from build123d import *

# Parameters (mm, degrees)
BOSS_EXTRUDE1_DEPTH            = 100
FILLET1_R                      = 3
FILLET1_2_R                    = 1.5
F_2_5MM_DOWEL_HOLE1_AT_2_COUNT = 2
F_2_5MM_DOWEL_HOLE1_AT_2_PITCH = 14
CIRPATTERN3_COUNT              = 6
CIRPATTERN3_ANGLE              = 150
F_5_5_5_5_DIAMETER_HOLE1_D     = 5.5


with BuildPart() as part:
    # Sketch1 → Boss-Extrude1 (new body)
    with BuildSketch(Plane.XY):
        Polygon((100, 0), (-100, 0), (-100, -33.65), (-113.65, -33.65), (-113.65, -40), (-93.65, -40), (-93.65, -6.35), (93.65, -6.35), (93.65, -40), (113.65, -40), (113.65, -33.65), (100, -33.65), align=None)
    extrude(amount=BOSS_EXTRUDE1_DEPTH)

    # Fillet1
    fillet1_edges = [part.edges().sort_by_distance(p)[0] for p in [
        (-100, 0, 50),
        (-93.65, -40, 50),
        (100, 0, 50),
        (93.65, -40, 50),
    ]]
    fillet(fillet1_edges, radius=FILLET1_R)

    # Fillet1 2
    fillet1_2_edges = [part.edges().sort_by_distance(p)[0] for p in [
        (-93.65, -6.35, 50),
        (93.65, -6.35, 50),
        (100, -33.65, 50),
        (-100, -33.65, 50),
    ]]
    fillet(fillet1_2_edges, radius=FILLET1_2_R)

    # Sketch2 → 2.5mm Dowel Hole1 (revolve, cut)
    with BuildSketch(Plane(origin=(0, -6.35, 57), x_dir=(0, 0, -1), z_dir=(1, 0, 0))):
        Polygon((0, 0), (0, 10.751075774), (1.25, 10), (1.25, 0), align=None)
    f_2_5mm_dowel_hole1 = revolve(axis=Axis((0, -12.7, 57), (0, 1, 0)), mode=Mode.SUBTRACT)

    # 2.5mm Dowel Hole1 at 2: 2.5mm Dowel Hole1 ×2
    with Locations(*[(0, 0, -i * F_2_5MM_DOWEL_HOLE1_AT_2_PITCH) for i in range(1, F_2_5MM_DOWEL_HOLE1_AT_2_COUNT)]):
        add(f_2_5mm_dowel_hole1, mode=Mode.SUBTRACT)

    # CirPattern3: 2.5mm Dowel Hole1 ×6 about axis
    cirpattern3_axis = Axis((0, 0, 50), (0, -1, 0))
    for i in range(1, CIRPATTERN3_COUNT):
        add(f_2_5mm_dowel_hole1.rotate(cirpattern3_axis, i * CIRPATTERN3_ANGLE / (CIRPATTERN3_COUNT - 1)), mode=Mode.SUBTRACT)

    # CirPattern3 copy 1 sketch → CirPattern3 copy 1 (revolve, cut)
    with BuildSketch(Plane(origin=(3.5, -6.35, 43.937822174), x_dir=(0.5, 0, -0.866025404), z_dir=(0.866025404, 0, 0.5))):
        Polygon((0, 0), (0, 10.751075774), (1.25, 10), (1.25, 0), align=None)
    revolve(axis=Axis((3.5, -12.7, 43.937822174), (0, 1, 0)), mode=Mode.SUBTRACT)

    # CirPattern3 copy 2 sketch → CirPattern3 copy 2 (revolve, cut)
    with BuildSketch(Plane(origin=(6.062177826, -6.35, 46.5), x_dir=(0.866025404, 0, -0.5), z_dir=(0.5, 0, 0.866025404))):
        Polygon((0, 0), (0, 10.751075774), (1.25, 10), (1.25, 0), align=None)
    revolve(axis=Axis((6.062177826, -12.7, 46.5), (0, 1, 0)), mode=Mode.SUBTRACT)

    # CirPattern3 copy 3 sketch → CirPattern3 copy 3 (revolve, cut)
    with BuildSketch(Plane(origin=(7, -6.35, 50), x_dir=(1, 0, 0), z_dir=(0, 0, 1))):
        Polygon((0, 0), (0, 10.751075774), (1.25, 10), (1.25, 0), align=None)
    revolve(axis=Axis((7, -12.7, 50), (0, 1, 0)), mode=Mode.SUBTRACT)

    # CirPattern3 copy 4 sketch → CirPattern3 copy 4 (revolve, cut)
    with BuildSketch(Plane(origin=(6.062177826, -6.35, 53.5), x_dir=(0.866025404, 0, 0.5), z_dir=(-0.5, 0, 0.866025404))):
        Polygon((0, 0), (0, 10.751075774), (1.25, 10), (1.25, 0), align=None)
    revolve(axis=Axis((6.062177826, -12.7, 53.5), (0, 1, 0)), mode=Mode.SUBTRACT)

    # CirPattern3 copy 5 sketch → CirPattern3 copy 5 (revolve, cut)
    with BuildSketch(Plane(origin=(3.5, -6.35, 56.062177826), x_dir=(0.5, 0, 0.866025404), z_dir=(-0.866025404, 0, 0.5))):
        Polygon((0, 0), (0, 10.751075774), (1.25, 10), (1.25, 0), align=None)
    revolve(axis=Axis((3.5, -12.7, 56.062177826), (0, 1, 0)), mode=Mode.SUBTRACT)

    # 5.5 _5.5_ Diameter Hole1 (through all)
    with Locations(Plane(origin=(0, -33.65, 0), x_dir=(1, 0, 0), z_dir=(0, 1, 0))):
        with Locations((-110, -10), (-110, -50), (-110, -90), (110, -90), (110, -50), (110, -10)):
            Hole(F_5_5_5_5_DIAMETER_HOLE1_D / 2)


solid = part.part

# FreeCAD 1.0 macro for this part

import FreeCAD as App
import Part
import Sketcher
from FreeCAD import Vector
Q = App.Units.Quantity


def edges_at(feature, points):
    """Names of the edges that pass closest to the given points."""
    edges = feature.Shape.Edges
    near = lambda p: min(range(len(edges)), key=lambda i: edges[i].distToShape(Part.Vertex(*p))[0])
    return sorted({f"Edge{near(p) + 1}" for p in points})

doc = App.newDocument("Part")
params = doc.addObject("Spreadsheet::Sheet", "Params")
for row, (alias, value) in enumerate([
    ("sketch1_width", "200 mm"),
    ("sketch1_width2", "20 mm"),
    ("sketch1_width3", "187.3 mm"),
    ("sketch1_height", "33.65 mm"),
    ("pad1_length", "100 mm"),
    ("fillet_radius", "3 mm"),
    ("fillet2_radius", "1.5 mm"),
    ("sketch2_width", "10 mm"),
    ("sketch2_height", "1.25 mm"),
    ("groove_angle", "360 deg"),
    ("linearpattern_pitch", "14 mm"),
    ("sketch3_height", "10 mm"),
    ("sketch3_width", "1.25 mm"),
    ("groove2_angle", "360 deg"),
    ("sketch4_height", "10 mm"),
    ("sketch4_width", "1.25 mm"),
    ("groove3_angle", "360 deg"),
    ("sketch5_height", "10 mm"),
    ("sketch5_width", "1.25 mm"),
    ("groove4_angle", "360 deg"),
    ("sketch6_height", "10 mm"),
    ("sketch6_width", "1.25 mm"),
    ("groove5_angle", "360 deg"),
    ("sketch7_height", "10 mm"),
    ("sketch7_width", "1.25 mm"),
    ("groove6_angle", "360 deg"),
    ("sketch8_diameter", "5.5 mm"),
    ("hole_diameter", "5.5 mm"),
], start=1):
    params.set(f"A{row}", alias)
    params.set(f"B{row}", "=" + value)
    params.setAlias(f"B{row}", alias)

body = doc.addObject("PartDesign::Body", "Body")

# Sketch on XY plane
sketch1 = body.newObject("Sketcher::SketchObject", "Sketch")
sketch1.AttachmentSupport = (doc.getObject("XY_Plane"), [""])
sketch1.MapMode = "FlatFace"
sketch1.addGeometry([
    Part.LineSegment(Vector(100, 0, 0), Vector(-100, 0, 0)),  # 0
    Part.LineSegment(Vector(-100, 0, 0), Vector(-100, -33.65, 0)),  # 1
    Part.LineSegment(Vector(-100, -33.65, 0), Vector(-113.65, -33.65, 0)),  # 2
    Part.LineSegment(Vector(-113.65, -33.65, 0), Vector(-113.65, -40, 0)),  # 3
    Part.LineSegment(Vector(-113.65, -40, 0), Vector(-93.65, -40, 0)),  # 4
    Part.LineSegment(Vector(-93.65, -40, 0), Vector(-93.65, -6.35, 0)),  # 5
    Part.LineSegment(Vector(-93.65, -6.35, 0), Vector(93.65, -6.35, 0)),  # 6
    Part.LineSegment(Vector(93.65, -6.35, 0), Vector(93.65, -40, 0)),  # 7
    Part.LineSegment(Vector(93.65, -40, 0), Vector(113.65, -40, 0)),  # 8
    Part.LineSegment(Vector(113.65, -40, 0), Vector(113.65, -33.65, 0)),  # 9
    Part.LineSegment(Vector(113.65, -33.65, 0), Vector(100, -33.65, 0)),  # 10
    Part.LineSegment(Vector(100, -33.65, 0), Vector(100, 0, 0)),  # 11
], False)
sketch1.addConstraint([
    Sketcher.Constraint("Coincident", 0, 2, 1, 1),
    Sketcher.Constraint("Coincident", 1, 2, 2, 1),
    Sketcher.Constraint("Coincident", 2, 2, 3, 1),
    Sketcher.Constraint("Coincident", 3, 2, 4, 1),
    Sketcher.Constraint("Coincident", 4, 2, 5, 1),
    Sketcher.Constraint("Coincident", 5, 2, 6, 1),
    Sketcher.Constraint("Coincident", 6, 2, 7, 1),
    Sketcher.Constraint("Coincident", 7, 2, 8, 1),
    Sketcher.Constraint("Coincident", 8, 2, 9, 1),
    Sketcher.Constraint("Coincident", 9, 2, 10, 1),
    Sketcher.Constraint("Coincident", 10, 2, 11, 1),
    Sketcher.Constraint("Coincident", 11, 2, 0, 1),
    Sketcher.Constraint("Horizontal", 0),
    Sketcher.Constraint("Vertical", 1),
    Sketcher.Constraint("Horizontal", 2),
    Sketcher.Constraint("Vertical", 3),
    Sketcher.Constraint("Horizontal", 4),
    Sketcher.Constraint("Vertical", 5),
    Sketcher.Constraint("Horizontal", 6),
    Sketcher.Constraint("Vertical", 7),
    Sketcher.Constraint("Horizontal", 8),
    Sketcher.Constraint("Vertical", 9),
    Sketcher.Constraint("Horizontal", 10),
    Sketcher.Constraint("Vertical", 11),
    Sketcher.Constraint("Symmetric", 0, 2, 11, 2, -1, 1),
    Sketcher.Constraint("Symmetric", 4, 2, 7, 2, -2),
    Sketcher.Constraint("Symmetric", 2, 2, 9, 2, -2),
    Sketcher.Constraint("Equal", 1, 5),
    Sketcher.Constraint("DistanceX", 0, 2, 0, 1, Q("200 mm")),
    Sketcher.Constraint("DistanceX", 4, 1, 4, 2, Q("20 mm")),
    Sketcher.Constraint("DistanceX", 6, 1, 6, 2, Q("187.3 mm")),
    Sketcher.Constraint("DistanceY", 3, 2, -1, 1, Q("40 mm")),
    Sketcher.Constraint("DistanceY", 1, 2, 1, 1, Q("33.65 mm")),
])
sketch1.setExpression("Constraints[28]", "Params.sketch1_width")
sketch1.setExpression("Constraints[29]", "Params.sketch1_width2")
sketch1.setExpression("Constraints[30]", "Params.sketch1_width3")
sketch1.setExpression("Constraints[32]", "Params.sketch1_height")
pad1 = body.newObject("PartDesign::Pad", "Pad")
pad1.Profile = sketch1
pad1.setExpression("Length", "Params.pad1_length")
doc.recompute()

fillet = body.newObject("PartDesign::Fillet", "Fillet")
fillet.Base = (pad1, edges_at(pad1, [
    (-100, 0, 50),
    (-93.65, -40, 50),
    (100, 0, 50),
    (93.65, -40, 50),
]))
fillet.setExpression("Radius", "Params.fillet_radius")
doc.recompute()

fillet2 = body.newObject("PartDesign::Fillet", "Fillet001")
fillet2.Base = (fillet, edges_at(fillet, [
    (-93.65, -6.35, 50),
    (93.65, -6.35, 50),
    (100, -33.65, 50),
    (-100, -33.65, 50),
]))
fillet2.setExpression("Radius", "Params.fillet2_radius")

# Sketch on YZ plane
sketch2 = body.newObject("Sketcher::SketchObject", "Sketch001")
sketch2.AttachmentSupport = (doc.getObject("YZ_Plane"), [""])
sketch2.MapMode = "FlatFace"
sketch2.addGeometry([
    Part.LineSegment(Vector(4.401076, 57, 0), Vector(-6.35, 57, 0)),
    Part.LineSegment(Vector(-6.35, 57, 0), Vector(-6.35, 55.75, 0)),
    Part.LineSegment(Vector(-6.35, 55.75, 0), Vector(3.65, 55.75, 0)),
    Part.LineSegment(Vector(3.65, 55.75, 0), Vector(4.401076, 57, 0)),
], False)
sketch2.addGeometry(Part.LineSegment(Vector(-6.35, 57, 0), Vector(4.401076, 57, 0)), True)  # axis
sketch2.addConstraint([
    Sketcher.Constraint("Coincident", 0, 2, 1, 1),
    Sketcher.Constraint("Coincident", 1, 2, 2, 1),
    Sketcher.Constraint("Coincident", 2, 2, 3, 1),
    Sketcher.Constraint("Coincident", 3, 2, 0, 1),
    Sketcher.Constraint("Horizontal", 0),
    Sketcher.Constraint("Vertical", 1),
    Sketcher.Constraint("Horizontal", 2),
    Sketcher.Constraint("Horizontal", 4),
    Sketcher.Constraint("Coincident", 4, 1, 0, 2),
    Sketcher.Constraint("Equal", 0, 4),
    Sketcher.Constraint("DistanceX", 2, 1, 2, 2, Q("10 mm")),
    Sketcher.Constraint("Angle", 3, Q("59 deg")),
    Sketcher.Constraint("DistanceY", -1, 1, 0, 2, Q("57 mm")),
    Sketcher.Constraint("DistanceY", 1, 2, 1, 1, Q("1.25 mm")),
    Sketcher.Constraint("DistanceX", 0, 2, -1, 1, Q("6.35 mm")),
])
sketch2.setExpression("Constraints[10]", "Params.sketch2_width")
sketch2.setExpression("Constraints[13]", "Params.sketch2_height")
groove = body.newObject("PartDesign::Groove", "Groove")
groove.Profile = sketch2
groove.ReferenceAxis = (sketch2, ["Axis0"])
groove.setExpression("Angle", "Params.groove_angle")
doc.recompute()

linearpattern = body.newObject("PartDesign::LinearPattern", "LinearPattern")
linearpattern.Originals = [groove]
linearpattern.Direction = (doc.getObject("Z_Axis"), [""])
linearpattern.Mode = "offset"
linearpattern.setExpression("Offset", "Params.linearpattern_pitch")
linearpattern.Occurrences = 2
linearpattern.Reversed = True
body.Tip = linearpattern
doc.recompute()

datumline = body.newObject("PartDesign::Line", "DatumLine")
datumline.Placement = App.Placement(Vector(0, 0, 50), App.Rotation(Vector(0, 0, 1), Vector(0, -1, 0)))
polarpattern = body.newObject("PartDesign::PolarPattern", "PolarPattern")
polarpattern.Originals = [groove]
polarpattern.Axis = (datumline, [""])
polarpattern.Angle = 150
polarpattern.Occurrences = 6
body.Tip = polarpattern

# Sketch on an angled plane
sketch3 = body.newObject("Sketcher::SketchObject", "Sketch002")
sketch3.Placement = App.Placement(Vector(3.5, -6.35, 43.937822), App.Rotation(Vector(0.5, 0, -0.866025404), Vector(0, 1, 0), Vector(0.866025404, 0, 0.5), "ZXY"))
sketch3.addGeometry([
    Part.LineSegment(Vector(0, 10.751076, 0), Vector(0, 0, 0)),
    Part.LineSegment(Vector(0, 0, 0), Vector(1.25, 0, 0)),
    Part.LineSegment(Vector(1.25, 0, 0), Vector(1.25, 10, 0)),
    Part.LineSegment(Vector(1.25, 10, 0), Vector(0, 10.751076, 0)),
], False)
sketch3.addConstraint([
    Sketcher.Constraint("Coincident", 0, 2, 1, 1),
    Sketcher.Constraint("Coincident", 1, 2, 2, 1),
    Sketcher.Constraint("Coincident", 2, 2, 3, 1),
    Sketcher.Constraint("Coincident", 3, 2, 0, 1),
    Sketcher.Constraint("Vertical", 0),
    Sketcher.Constraint("Horizontal", 1),
    Sketcher.Constraint("Vertical", 2),
    Sketcher.Constraint("Coincident", 0, 2, -1, 1),
    Sketcher.Constraint("DistanceY", 2, 1, 2, 2, Q("10 mm")),
    Sketcher.Constraint("Angle", 3, Q("149 deg")),
    Sketcher.Constraint("DistanceX", 1, 1, 1, 2, Q("1.25 mm")),
])
sketch3.setExpression("Constraints[8]", "Params.sketch3_height")
sketch3.setExpression("Constraints[10]", "Params.sketch3_width")
groove2 = body.newObject("PartDesign::Groove", "Groove001")
groove2.Profile = sketch3
groove2.ReferenceAxis = (sketch3, ["V_Axis"])
groove2.setExpression("Angle", "Params.groove2_angle")

# Sketch on an angled plane
sketch4 = body.newObject("Sketcher::SketchObject", "Sketch003")
sketch4.Placement = App.Placement(Vector(6.062178, -6.35, 46.5), App.Rotation(Vector(0.866025404, 0, -0.5), Vector(0, 1, 0), Vector(0.5, 0, 0.866025404), "ZXY"))
sketch4.addGeometry([
    Part.LineSegment(Vector(0, 10.751076, 0), Vector(0, 0, 0)),
    Part.LineSegment(Vector(0, 0, 0), Vector(1.25, 0, 0)),
    Part.LineSegment(Vector(1.25, 0, 0), Vector(1.25, 10, 0)),
    Part.LineSegment(Vector(1.25, 10, 0), Vector(0, 10.751076, 0)),
], False)
sketch4.addConstraint([
    Sketcher.Constraint("Coincident", 0, 2, 1, 1),
    Sketcher.Constraint("Coincident", 1, 2, 2, 1),
    Sketcher.Constraint("Coincident", 2, 2, 3, 1),
    Sketcher.Constraint("Coincident", 3, 2, 0, 1),
    Sketcher.Constraint("Vertical", 0),
    Sketcher.Constraint("Horizontal", 1),
    Sketcher.Constraint("Vertical", 2),
    Sketcher.Constraint("Coincident", 0, 2, -1, 1),
    Sketcher.Constraint("DistanceY", 2, 1, 2, 2, Q("10 mm")),
    Sketcher.Constraint("Angle", 3, Q("149 deg")),
    Sketcher.Constraint("DistanceX", 1, 1, 1, 2, Q("1.25 mm")),
])
sketch4.setExpression("Constraints[8]", "Params.sketch4_height")
sketch4.setExpression("Constraints[10]", "Params.sketch4_width")
groove3 = body.newObject("PartDesign::Groove", "Groove002")
groove3.Profile = sketch4
groove3.ReferenceAxis = (sketch4, ["V_Axis"])
groove3.setExpression("Angle", "Params.groove3_angle")

# Sketch on XY plane
sketch5 = body.newObject("Sketcher::SketchObject", "Sketch004")
sketch5.AttachmentSupport = (doc.getObject("XY_Plane"), [""])
sketch5.MapMode = "FlatFace"
sketch5.AttachmentOffset = App.Placement(Vector(0, 0, 50), App.Rotation())
sketch5.addGeometry([
    Part.LineSegment(Vector(7, 4.401076, 0), Vector(7, -6.35, 0)),
    Part.LineSegment(Vector(7, -6.35, 0), Vector(8.25, -6.35, 0)),
    Part.LineSegment(Vector(8.25, -6.35, 0), Vector(8.25, 3.65, 0)),
    Part.LineSegment(Vector(8.25, 3.65, 0), Vector(7, 4.401076, 0)),
], False)
sketch5.addGeometry(Part.LineSegment(Vector(7, -6.35, 0), Vector(7, 4.401076, 0)), True)  # axis
sketch5.addConstraint([
    Sketcher.Constraint("Coincident", 0, 2, 1, 1),
    Sketcher.Constraint("Coincident", 1, 2, 2, 1),
    Sketcher.Constraint("Coincident", 2, 2, 3, 1),
    Sketcher.Constraint("Coincident", 3, 2, 0, 1),
    Sketcher.Constraint("Vertical", 0),
    Sketcher.Constraint("Horizontal", 1),
    Sketcher.Constraint("Vertical", 2),
    Sketcher.Constraint("Vertical", 4),
    Sketcher.Constraint("Coincident", 4, 1, 0, 2),
    Sketcher.Constraint("Equal", 0, 4),
    Sketcher.Constraint("DistanceY", 2, 1, 2, 2, Q("10 mm")),
    Sketcher.Constraint("Angle", 3, Q("149 deg")),
    Sketcher.Constraint("DistanceX", -1, 1, 0, 2, Q("7 mm")),
    Sketcher.Constraint("DistanceX", 1, 1, 1, 2, Q("1.25 mm")),
    Sketcher.Constraint("DistanceY", 0, 2, -1, 1, Q("6.35 mm")),
])
sketch5.setExpression("Constraints[10]", "Params.sketch5_height")
sketch5.setExpression("Constraints[13]", "Params.sketch5_width")
groove4 = body.newObject("PartDesign::Groove", "Groove003")
groove4.Profile = sketch5
groove4.ReferenceAxis = (sketch5, ["Axis0"])
groove4.setExpression("Angle", "Params.groove4_angle")

# Sketch on an angled plane
sketch6 = body.newObject("Sketcher::SketchObject", "Sketch005")
sketch6.Placement = App.Placement(Vector(6.062178, -6.35, 53.5), App.Rotation(Vector(0.866025404, 0, 0.5), Vector(0, 1, 0), Vector(-0.5, 0, 0.866025404), "ZXY"))
sketch6.addGeometry([
    Part.LineSegment(Vector(0, 10.751076, 0), Vector(0, 0, 0)),
    Part.LineSegment(Vector(0, 0, 0), Vector(1.25, 0, 0)),
    Part.LineSegment(Vector(1.25, 0, 0), Vector(1.25, 10, 0)),
    Part.LineSegment(Vector(1.25, 10, 0), Vector(0, 10.751076, 0)),
], False)
sketch6.addConstraint([
    Sketcher.Constraint("Coincident", 0, 2, 1, 1),
    Sketcher.Constraint("Coincident", 1, 2, 2, 1),
    Sketcher.Constraint("Coincident", 2, 2, 3, 1),
    Sketcher.Constraint("Coincident", 3, 2, 0, 1),
    Sketcher.Constraint("Vertical", 0),
    Sketcher.Constraint("Horizontal", 1),
    Sketcher.Constraint("Vertical", 2),
    Sketcher.Constraint("Coincident", 0, 2, -1, 1),
    Sketcher.Constraint("DistanceY", 2, 1, 2, 2, Q("10 mm")),
    Sketcher.Constraint("Angle", 3, Q("149 deg")),
    Sketcher.Constraint("DistanceX", 1, 1, 1, 2, Q("1.25 mm")),
])
sketch6.setExpression("Constraints[8]", "Params.sketch6_height")
sketch6.setExpression("Constraints[10]", "Params.sketch6_width")
groove5 = body.newObject("PartDesign::Groove", "Groove004")
groove5.Profile = sketch6
groove5.ReferenceAxis = (sketch6, ["V_Axis"])
groove5.setExpression("Angle", "Params.groove5_angle")

# Sketch on an angled plane
sketch7 = body.newObject("Sketcher::SketchObject", "Sketch006")
sketch7.Placement = App.Placement(Vector(3.5, -6.35, 56.062178), App.Rotation(Vector(0.5, 0, 0.866025404), Vector(0, 1, 0), Vector(-0.866025404, 0, 0.5), "ZXY"))
sketch7.addGeometry([
    Part.LineSegment(Vector(0, 10.751076, 0), Vector(0, 0, 0)),
    Part.LineSegment(Vector(0, 0, 0), Vector(1.25, 0, 0)),
    Part.LineSegment(Vector(1.25, 0, 0), Vector(1.25, 10, 0)),
    Part.LineSegment(Vector(1.25, 10, 0), Vector(0, 10.751076, 0)),
], False)
sketch7.addConstraint([
    Sketcher.Constraint("Coincident", 0, 2, 1, 1),
    Sketcher.Constraint("Coincident", 1, 2, 2, 1),
    Sketcher.Constraint("Coincident", 2, 2, 3, 1),
    Sketcher.Constraint("Coincident", 3, 2, 0, 1),
    Sketcher.Constraint("Vertical", 0),
    Sketcher.Constraint("Horizontal", 1),
    Sketcher.Constraint("Vertical", 2),
    Sketcher.Constraint("Coincident", 0, 2, -1, 1),
    Sketcher.Constraint("DistanceY", 2, 1, 2, 2, Q("10 mm")),
    Sketcher.Constraint("Angle", 3, Q("149 deg")),
    Sketcher.Constraint("DistanceX", 1, 1, 1, 2, Q("1.25 mm")),
])
sketch7.setExpression("Constraints[8]", "Params.sketch7_height")
sketch7.setExpression("Constraints[10]", "Params.sketch7_width")
groove6 = body.newObject("PartDesign::Groove", "Groove005")
groove6.Profile = sketch7
groove6.ReferenceAxis = (sketch7, ["V_Axis"])
groove6.setExpression("Angle", "Params.groove6_angle")

# Sketch on XZ plane
sketch8 = body.newObject("Sketcher::SketchObject", "Sketch007")
sketch8.AttachmentSupport = (doc.getObject("XZ_Plane"), [""])
sketch8.MapMode = "FlatFace"
sketch8.AttachmentOffset = App.Placement(Vector(0, 0, 33.65), App.Rotation())
sketch8.addGeometry([
    Part.Circle(Vector(-110, 10, 0), Vector(0, 0, 1), 2.75),  # 0
    Part.Circle(Vector(-110, 50, 0), Vector(0, 0, 1), 2.75),  # 1
    Part.Circle(Vector(-110, 90, 0), Vector(0, 0, 1), 2.75),  # 2
    Part.Circle(Vector(110, 90, 0), Vector(0, 0, 1), 2.75),  # 3
    Part.Circle(Vector(110, 50, 0), Vector(0, 0, 1), 2.75),  # 4
    Part.Circle(Vector(110, 10, 0), Vector(0, 0, 1), 2.75),  # 5
], False)
sketch8.addConstraint([
    Sketcher.Constraint("Equal", 0, 1),
    Sketcher.Constraint("Equal", 1, 2),
    Sketcher.Constraint("Equal", 2, 3),
    Sketcher.Constraint("Equal", 3, 4),
    Sketcher.Constraint("Equal", 4, 5),
    Sketcher.Constraint("Symmetric", 2, 3, 3, 3, -2),
    Sketcher.Constraint("Symmetric", 1, 3, 4, 3, -2),
    Sketcher.Constraint("Symmetric", 0, 3, 5, 3, -2),
    Sketcher.Constraint("Vertical", 0, 3, 1, 3),
    Sketcher.Constraint("Vertical", 1, 3, 2, 3),
    Sketcher.Constraint("Diameter", 0, Q("5.5 mm")),
    Sketcher.Constraint("DistanceX", 0, 3, -1, 1, Q("110 mm")),
    Sketcher.Constraint("DistanceY", -1, 1, 0, 3, Q("10 mm")),
    Sketcher.Constraint("DistanceY", -1, 1, 1, 3, Q("50 mm")),
    Sketcher.Constraint("DistanceY", -1, 1, 2, 3, Q("90 mm")),
])
sketch8.setExpression("Constraints[10]", "Params.sketch8_diameter")
doc.recompute()
hole = body.newObject("PartDesign::Hole", "Hole")
hole.Profile = sketch8
hole.ThreadType = "None"
hole.setExpression("Diameter", "Params.hole_diameter")
hole.DepthType = "ThroughAll"
hole.Reversed = True

doc.recompute()
